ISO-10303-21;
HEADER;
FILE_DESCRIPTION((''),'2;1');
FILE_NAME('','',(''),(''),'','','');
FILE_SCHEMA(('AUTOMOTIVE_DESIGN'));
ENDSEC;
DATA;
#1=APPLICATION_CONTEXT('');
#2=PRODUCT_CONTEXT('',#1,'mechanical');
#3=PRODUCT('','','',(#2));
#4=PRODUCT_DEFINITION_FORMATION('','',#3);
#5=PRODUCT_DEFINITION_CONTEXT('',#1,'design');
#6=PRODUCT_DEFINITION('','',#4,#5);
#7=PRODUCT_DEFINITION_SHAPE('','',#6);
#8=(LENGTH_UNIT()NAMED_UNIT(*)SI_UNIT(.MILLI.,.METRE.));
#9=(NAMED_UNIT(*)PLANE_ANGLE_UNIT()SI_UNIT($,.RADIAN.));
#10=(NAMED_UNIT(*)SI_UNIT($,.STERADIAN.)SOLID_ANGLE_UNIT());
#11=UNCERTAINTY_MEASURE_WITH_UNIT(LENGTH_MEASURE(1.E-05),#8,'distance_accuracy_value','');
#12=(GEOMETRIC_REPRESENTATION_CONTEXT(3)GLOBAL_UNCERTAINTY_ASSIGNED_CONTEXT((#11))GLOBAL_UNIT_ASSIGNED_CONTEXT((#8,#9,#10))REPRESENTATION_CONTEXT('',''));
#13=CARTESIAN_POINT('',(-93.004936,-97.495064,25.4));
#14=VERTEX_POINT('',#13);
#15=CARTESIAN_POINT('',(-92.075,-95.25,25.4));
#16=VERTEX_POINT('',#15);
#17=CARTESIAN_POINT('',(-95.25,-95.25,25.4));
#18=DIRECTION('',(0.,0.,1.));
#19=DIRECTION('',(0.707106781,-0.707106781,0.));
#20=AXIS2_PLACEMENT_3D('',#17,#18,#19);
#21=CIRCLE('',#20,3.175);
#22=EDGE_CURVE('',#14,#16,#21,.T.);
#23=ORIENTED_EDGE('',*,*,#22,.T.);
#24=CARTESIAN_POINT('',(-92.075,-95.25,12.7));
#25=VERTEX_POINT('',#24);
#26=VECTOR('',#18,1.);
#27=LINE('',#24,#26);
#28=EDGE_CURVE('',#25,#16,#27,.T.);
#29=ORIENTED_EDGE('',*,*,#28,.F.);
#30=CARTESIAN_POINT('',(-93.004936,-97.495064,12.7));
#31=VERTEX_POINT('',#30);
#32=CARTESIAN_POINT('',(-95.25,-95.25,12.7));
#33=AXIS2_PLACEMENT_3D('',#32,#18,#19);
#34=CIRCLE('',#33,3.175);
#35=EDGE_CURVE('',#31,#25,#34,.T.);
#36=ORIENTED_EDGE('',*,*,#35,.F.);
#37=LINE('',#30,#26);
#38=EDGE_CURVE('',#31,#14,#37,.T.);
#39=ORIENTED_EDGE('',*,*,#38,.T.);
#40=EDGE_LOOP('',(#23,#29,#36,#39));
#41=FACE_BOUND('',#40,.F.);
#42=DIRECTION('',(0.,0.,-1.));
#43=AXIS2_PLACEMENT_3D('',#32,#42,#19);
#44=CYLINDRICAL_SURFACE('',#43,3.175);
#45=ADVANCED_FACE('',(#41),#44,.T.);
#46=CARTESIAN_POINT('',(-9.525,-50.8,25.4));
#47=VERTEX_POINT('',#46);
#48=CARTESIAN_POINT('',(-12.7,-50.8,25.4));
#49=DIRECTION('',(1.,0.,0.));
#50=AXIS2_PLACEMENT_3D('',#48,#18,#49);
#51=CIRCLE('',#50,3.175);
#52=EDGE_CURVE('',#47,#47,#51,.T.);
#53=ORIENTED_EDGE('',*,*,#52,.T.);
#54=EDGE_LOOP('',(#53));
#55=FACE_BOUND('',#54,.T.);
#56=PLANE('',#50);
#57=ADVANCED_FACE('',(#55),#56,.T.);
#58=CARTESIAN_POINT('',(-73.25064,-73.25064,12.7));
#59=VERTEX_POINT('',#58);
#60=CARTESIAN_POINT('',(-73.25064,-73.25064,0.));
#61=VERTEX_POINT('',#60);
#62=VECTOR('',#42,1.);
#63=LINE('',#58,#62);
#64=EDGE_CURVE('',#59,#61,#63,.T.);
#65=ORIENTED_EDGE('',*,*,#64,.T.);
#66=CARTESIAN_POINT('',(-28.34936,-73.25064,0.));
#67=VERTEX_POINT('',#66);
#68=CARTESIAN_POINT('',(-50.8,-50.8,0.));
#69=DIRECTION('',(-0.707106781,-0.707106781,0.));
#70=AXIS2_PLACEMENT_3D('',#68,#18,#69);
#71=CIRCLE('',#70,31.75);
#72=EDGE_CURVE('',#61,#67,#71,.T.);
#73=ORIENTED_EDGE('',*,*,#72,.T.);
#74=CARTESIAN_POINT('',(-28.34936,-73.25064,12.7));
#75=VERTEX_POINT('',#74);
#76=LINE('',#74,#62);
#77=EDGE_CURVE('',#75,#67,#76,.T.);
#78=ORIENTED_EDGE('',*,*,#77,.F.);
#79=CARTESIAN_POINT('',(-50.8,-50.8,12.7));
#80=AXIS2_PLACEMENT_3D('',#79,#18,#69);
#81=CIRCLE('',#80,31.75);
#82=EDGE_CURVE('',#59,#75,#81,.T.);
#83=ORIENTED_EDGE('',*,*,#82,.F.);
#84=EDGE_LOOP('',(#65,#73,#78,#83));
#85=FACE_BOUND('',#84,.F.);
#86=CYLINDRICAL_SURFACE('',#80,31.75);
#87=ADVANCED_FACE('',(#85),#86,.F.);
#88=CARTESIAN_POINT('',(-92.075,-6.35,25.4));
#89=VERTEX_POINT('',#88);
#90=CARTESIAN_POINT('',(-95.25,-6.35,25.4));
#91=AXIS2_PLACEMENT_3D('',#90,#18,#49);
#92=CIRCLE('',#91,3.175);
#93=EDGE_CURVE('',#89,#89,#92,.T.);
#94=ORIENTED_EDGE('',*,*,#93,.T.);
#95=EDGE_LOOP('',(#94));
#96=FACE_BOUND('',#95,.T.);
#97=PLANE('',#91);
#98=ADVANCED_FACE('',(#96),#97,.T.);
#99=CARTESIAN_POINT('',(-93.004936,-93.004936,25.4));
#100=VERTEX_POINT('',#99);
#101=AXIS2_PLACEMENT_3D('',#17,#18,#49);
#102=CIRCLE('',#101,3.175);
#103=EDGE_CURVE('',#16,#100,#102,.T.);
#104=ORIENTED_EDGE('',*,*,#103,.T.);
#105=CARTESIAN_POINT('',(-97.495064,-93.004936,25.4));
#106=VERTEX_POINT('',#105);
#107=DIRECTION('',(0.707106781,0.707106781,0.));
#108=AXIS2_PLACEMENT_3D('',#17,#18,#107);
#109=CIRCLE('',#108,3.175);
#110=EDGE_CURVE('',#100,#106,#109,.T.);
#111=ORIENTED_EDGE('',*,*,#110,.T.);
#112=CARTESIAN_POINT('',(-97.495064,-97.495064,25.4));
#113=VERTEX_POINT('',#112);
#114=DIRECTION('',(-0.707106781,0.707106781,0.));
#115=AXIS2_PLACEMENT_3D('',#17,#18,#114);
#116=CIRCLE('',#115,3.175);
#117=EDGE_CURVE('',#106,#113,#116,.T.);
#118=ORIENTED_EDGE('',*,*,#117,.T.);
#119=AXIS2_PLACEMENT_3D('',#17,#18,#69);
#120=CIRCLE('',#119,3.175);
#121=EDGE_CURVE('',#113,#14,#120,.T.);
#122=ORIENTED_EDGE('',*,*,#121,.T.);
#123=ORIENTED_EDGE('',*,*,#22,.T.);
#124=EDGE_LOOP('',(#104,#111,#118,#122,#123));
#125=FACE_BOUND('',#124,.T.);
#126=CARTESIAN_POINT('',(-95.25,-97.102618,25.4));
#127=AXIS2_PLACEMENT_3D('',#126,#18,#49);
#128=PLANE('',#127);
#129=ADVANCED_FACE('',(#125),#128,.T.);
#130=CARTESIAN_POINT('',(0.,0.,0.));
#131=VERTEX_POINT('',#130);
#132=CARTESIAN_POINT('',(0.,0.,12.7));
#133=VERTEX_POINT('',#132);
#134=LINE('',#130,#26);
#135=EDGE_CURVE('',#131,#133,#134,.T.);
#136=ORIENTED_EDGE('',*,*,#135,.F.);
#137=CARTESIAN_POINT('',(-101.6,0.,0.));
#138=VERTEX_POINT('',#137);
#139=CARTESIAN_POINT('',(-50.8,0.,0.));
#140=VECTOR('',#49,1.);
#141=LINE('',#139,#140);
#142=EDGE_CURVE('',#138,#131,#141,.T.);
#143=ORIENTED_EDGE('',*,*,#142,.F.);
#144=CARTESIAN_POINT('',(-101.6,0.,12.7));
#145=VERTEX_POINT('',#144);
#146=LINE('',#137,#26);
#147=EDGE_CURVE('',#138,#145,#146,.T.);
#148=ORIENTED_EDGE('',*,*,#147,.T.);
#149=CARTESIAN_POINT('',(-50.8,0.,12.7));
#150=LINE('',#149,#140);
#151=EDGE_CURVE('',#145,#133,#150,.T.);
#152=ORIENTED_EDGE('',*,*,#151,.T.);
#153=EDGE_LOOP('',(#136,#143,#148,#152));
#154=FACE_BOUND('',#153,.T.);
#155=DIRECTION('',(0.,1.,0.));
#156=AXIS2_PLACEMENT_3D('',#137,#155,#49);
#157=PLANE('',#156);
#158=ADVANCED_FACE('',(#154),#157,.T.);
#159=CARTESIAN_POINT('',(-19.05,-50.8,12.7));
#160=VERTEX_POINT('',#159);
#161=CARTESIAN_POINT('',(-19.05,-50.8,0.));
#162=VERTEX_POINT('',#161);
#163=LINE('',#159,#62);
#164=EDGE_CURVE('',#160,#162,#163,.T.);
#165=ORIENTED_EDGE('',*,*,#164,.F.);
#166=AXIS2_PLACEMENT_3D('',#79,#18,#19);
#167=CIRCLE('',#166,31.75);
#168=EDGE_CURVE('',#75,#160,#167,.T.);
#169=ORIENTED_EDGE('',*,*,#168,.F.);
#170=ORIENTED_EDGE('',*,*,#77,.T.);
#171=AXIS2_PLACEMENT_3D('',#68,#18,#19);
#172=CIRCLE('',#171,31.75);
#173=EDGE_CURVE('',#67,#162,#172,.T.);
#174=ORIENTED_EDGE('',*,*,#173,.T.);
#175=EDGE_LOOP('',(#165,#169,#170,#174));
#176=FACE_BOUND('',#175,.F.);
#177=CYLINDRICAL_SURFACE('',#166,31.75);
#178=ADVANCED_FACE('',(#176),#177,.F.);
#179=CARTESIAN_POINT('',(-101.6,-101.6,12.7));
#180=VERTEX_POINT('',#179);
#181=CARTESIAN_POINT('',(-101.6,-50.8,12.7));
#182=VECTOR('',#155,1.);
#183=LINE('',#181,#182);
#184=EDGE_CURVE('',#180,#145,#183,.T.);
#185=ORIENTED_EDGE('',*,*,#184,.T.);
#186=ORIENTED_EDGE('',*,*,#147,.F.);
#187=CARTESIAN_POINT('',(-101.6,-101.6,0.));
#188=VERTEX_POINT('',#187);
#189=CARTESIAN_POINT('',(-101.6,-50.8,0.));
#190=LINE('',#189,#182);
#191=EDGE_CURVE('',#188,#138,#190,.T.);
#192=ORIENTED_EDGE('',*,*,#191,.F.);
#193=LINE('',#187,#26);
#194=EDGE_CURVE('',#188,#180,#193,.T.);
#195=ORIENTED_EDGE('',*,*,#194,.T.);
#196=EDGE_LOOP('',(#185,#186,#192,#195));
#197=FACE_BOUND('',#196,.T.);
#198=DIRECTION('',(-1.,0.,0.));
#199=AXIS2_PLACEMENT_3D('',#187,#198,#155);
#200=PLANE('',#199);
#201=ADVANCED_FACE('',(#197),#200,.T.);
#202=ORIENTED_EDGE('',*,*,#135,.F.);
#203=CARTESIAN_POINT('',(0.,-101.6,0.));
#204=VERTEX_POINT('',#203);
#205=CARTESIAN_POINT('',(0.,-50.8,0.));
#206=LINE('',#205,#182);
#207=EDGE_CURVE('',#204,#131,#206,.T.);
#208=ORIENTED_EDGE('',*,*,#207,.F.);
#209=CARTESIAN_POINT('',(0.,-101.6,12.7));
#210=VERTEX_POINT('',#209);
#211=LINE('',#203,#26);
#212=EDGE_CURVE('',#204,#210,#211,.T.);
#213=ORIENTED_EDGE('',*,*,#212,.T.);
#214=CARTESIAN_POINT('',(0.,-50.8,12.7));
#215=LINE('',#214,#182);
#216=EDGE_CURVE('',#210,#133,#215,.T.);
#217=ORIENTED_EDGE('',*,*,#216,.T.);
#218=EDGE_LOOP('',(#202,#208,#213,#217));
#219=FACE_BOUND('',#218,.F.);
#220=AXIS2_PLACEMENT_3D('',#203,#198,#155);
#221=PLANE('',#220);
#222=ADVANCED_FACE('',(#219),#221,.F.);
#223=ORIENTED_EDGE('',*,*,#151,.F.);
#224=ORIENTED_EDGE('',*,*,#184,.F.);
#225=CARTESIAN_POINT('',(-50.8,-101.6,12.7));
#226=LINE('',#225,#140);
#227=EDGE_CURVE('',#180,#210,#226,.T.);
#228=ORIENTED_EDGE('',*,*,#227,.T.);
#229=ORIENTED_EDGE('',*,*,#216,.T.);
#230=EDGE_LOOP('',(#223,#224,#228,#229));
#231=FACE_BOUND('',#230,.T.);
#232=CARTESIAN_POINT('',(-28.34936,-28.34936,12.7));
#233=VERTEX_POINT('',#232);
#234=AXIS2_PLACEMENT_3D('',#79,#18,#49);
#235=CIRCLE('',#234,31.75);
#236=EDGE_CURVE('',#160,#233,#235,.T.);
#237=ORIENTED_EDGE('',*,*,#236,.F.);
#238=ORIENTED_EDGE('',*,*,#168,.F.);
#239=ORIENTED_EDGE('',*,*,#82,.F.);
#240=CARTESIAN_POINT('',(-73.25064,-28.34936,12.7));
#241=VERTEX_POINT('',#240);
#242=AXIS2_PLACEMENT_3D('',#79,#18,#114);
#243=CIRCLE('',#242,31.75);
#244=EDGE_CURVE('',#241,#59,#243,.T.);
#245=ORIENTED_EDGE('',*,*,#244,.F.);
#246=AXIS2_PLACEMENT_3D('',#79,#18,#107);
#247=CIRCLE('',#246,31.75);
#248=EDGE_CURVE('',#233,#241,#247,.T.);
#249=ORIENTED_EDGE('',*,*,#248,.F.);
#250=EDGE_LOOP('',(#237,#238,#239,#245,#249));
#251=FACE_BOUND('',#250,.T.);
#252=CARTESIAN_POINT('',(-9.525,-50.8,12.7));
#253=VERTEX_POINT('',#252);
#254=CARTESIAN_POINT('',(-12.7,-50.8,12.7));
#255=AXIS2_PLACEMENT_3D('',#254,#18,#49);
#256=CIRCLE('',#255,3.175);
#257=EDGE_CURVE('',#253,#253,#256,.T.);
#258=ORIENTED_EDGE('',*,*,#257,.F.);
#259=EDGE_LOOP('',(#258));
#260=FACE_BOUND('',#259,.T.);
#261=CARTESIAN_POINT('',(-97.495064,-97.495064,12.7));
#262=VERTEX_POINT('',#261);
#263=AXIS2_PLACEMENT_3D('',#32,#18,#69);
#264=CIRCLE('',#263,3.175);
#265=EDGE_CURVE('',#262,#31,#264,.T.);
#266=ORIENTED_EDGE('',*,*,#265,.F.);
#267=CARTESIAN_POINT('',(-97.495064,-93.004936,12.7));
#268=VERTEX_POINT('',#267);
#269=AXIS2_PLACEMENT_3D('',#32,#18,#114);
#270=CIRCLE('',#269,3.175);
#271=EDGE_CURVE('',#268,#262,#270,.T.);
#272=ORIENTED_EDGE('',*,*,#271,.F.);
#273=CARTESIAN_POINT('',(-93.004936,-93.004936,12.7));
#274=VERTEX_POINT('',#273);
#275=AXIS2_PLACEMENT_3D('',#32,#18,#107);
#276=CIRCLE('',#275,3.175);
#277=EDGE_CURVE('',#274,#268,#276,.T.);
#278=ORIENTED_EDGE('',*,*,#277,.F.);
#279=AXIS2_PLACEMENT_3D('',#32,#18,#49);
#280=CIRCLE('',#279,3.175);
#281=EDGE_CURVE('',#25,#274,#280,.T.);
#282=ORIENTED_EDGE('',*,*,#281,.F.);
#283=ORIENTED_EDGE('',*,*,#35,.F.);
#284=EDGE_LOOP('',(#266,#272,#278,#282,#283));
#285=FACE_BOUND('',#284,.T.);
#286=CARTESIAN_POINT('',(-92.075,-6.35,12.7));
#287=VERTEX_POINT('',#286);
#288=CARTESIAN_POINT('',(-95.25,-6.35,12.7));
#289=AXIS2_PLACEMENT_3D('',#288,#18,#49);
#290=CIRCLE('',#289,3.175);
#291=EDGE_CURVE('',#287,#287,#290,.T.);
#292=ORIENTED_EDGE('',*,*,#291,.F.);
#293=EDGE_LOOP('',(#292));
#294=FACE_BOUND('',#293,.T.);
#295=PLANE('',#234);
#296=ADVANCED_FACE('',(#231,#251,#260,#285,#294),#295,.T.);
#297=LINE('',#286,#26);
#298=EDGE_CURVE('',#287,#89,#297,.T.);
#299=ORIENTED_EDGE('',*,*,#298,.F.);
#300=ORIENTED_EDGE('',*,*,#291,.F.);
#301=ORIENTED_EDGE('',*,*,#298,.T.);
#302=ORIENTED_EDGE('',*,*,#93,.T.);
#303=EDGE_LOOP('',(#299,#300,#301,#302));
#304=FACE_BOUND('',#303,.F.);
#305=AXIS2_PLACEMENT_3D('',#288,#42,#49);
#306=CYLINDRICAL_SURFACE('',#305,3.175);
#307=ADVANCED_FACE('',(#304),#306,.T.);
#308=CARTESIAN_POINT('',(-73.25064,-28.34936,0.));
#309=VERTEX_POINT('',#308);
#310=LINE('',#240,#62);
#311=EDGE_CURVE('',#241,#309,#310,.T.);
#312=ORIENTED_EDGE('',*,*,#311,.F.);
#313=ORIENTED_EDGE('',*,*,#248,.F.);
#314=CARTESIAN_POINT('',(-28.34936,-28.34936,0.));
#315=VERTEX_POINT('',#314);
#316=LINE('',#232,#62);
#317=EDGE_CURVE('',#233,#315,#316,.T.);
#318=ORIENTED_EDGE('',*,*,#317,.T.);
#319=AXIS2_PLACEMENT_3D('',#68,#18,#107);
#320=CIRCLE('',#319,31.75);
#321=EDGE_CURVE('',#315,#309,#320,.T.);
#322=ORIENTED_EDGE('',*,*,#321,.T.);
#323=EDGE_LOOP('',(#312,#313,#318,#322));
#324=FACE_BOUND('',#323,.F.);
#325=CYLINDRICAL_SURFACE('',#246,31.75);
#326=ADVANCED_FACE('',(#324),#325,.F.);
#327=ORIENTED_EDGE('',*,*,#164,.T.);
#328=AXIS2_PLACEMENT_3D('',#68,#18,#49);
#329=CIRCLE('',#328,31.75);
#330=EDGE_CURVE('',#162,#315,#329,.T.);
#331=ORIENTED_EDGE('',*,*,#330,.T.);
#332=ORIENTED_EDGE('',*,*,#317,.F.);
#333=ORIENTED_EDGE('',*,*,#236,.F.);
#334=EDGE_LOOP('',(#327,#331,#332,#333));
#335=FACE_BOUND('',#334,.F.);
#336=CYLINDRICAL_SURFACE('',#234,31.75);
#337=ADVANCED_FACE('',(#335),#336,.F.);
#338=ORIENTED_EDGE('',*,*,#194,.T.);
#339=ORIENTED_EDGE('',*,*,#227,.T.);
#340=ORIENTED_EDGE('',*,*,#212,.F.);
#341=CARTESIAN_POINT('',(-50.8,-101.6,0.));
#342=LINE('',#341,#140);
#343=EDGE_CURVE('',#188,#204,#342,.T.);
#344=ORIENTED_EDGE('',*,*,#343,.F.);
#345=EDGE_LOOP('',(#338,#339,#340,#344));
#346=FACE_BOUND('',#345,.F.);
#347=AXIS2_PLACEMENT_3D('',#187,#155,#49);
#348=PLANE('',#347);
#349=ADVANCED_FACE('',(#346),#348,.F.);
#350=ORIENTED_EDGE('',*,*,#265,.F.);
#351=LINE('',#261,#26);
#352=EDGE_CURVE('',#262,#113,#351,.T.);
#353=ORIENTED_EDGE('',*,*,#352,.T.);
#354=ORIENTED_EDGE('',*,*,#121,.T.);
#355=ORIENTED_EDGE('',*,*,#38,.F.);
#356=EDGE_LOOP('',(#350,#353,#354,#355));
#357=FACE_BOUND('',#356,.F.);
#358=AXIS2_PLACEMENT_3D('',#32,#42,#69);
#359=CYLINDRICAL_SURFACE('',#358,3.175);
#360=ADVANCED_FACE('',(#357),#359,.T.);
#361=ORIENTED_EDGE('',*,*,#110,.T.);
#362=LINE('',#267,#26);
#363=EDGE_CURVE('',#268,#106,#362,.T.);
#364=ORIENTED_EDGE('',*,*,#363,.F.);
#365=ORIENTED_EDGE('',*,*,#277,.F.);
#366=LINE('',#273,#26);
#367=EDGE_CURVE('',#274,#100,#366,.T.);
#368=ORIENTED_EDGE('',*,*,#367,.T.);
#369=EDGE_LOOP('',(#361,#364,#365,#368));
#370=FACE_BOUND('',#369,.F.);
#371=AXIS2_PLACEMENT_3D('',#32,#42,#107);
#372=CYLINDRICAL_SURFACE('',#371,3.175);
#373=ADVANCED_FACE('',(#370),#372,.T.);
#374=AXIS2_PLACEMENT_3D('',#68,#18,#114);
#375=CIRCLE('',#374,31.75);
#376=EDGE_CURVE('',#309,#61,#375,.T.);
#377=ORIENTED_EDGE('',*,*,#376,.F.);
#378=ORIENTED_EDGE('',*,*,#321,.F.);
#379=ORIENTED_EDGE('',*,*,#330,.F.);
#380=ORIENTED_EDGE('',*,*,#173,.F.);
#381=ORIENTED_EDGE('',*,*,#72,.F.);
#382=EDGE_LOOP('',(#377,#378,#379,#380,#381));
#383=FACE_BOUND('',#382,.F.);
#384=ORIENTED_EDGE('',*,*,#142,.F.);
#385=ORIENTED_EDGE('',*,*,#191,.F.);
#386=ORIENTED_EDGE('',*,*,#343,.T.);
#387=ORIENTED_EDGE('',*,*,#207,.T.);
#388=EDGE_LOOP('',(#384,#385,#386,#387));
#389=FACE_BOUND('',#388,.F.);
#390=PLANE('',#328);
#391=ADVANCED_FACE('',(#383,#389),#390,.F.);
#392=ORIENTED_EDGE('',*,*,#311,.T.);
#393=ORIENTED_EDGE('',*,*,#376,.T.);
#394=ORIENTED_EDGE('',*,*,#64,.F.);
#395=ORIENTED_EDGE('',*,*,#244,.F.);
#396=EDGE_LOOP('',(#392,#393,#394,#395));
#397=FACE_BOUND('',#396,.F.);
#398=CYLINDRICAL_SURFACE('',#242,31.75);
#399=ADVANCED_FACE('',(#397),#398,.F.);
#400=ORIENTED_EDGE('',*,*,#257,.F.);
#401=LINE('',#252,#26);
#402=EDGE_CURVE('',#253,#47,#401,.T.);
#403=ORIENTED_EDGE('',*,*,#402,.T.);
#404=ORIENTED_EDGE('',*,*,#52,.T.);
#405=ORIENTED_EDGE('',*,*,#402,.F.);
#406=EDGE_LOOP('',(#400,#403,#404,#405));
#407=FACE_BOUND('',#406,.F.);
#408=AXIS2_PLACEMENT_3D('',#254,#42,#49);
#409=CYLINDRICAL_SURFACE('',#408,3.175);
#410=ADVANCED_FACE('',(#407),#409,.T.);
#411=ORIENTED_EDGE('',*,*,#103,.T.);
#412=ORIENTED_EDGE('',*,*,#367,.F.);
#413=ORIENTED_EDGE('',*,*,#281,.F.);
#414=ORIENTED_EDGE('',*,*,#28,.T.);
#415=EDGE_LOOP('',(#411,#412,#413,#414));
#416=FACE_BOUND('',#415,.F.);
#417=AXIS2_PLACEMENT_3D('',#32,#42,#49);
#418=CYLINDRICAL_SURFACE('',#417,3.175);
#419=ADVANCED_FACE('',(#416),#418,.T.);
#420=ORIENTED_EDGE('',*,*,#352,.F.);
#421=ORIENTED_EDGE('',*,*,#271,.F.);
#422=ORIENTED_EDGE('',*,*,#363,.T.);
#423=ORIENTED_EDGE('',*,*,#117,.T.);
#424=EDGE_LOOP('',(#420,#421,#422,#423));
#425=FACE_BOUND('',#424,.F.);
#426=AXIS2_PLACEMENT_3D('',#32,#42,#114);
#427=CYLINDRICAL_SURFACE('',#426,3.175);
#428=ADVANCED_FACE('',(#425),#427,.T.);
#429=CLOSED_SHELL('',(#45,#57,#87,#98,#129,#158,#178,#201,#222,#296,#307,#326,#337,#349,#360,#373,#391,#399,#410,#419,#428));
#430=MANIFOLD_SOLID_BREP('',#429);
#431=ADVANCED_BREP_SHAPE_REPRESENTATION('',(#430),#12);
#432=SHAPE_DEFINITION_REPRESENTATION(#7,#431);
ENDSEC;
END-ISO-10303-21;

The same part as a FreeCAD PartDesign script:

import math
import FreeCAD as App
import Part
import Sketcher
from FreeCAD import Vector
Q = App.Units.Quantity


def add_polygon(sketch, points):
    """Adds a closed chain of lines whose ends are joined by coincident constraints."""
    first, n = sketch.GeometryCount, len(points)
    for a, b in zip(points, points[1:] + points[:1]):
        sketch.addGeometry(Part.LineSegment(App.Vector(*a, 0), App.Vector(*b, 0)), False)
    for i in range(n):
        sketch.addConstraint(Sketcher.Constraint("Coincident", first + i, 2, first + (i + 1) % n, 1))

doc = App.newDocument("Part")
body = doc.addObject("PartDesign::Body", "Body")

# Sketch on XY plane
sketch1 = doc.addObject("Sketcher::SketchObject", "Sketch")
body.addObject(sketch1)
sketch1.AttachmentSupport = (doc.XY_Plane, [""])
sketch1.MapMode = "FlatFace"
add_polygon(sketch1, [(-102, 0), (-102, -102), (0, -102), (0, 0)])  # lines 0-3
sketch1.addConstraint([
    Sketcher.Constraint("Vertical", 0),
    Sketcher.Constraint("Horizontal", 1),
    Sketcher.Constraint("Vertical", 2),
    Sketcher.Constraint("Horizontal", 3),
    Sketcher.Constraint("Coincident", 2, 2, -1, 1),
    Sketcher.Constraint("Equal", 3, 0),
    Sketcher.Constraint("DistanceX", 1, 1, 1, 2, Q("4 in")),
])
pad1 = doc.addObject("PartDesign::Pad", "Pad")
body.addObject(pad1)
pad1.Profile = sketch1
pad1.Length = Q("0.5 in")

# Sketch on XY plane
sketch2 = doc.addObject("Sketcher::SketchObject", "Sketch001")
body.addObject(sketch2)
sketch2.AttachmentSupport = (doc.XY_Plane, [""])
sketch2.MapMode = "FlatFace"
sketch2.AttachmentOffset = App.Placement(Vector(0, 0, 0.5 * 25.4), App.Rotation())
sketch2.addGeometry([
    Part.ArcOfCircle(Part.Circle(Vector(-95.2, -95.2, 0), Vector(0, 0, 1), 3.2), math.radians(-135), math.radians(-45)),  # 0
    Part.ArcOfCircle(Part.Circle(Vector(-95.2, -95.2, 0), Vector(0, 0, 1), 3.2), math.radians(-45), math.radians(0)),  # 1
    Part.ArcOfCircle(Part.Circle(Vector(-95.2, -95.2, 0), Vector(0, 0, 1), 3.2), math.radians(0), math.radians(45)),  # 2
    Part.ArcOfCircle(Part.Circle(Vector(-95.2, -95.2, 0), Vector(0, 0, 1), 3.2), math.radians(45), math.radians(135)),  # 3
    Part.ArcOfCircle(Part.Circle(Vector(-95.2, -95.2, 0), Vector(0, 0, 1), 3.2), math.radians(135), math.radians(225)),  # 4
    Part.Circle(Vector(-95.2, -6.3, 0), Vector(0, 0, 1), 3.2),  # 5
], False)
sketch2.addConstraint([
    Sketcher.Constraint("Tangent", 0, 2, 1, 1),
    Sketcher.Constraint("Tangent", 1, 2, 2, 1),
    Sketcher.Constraint("Tangent", 2, 2, 3, 1),
    Sketcher.Constraint("Tangent", 3, 2, 4, 1),
    Sketcher.Constraint("Tangent", 4, 2, 0, 1),
    Sketcher.Constraint("Coincident", 2, 3, 0, 3),
    Sketcher.Constraint("Equal", 4, 5),
    Sketcher.Constraint("Horizontal", 4, 3, 1, 2),
    Sketcher.Constraint("Horizontal", 2, 2, 3, 2),
    Sketcher.Constraint("Horizontal", 0, 2, 4, 2),
    Sketcher.Constraint("Vertical", 4, 3, 5, 3),
    Sketcher.Constraint("Vertical", 0, 2, 2, 2),
    Sketcher.Constraint("Diameter", 5, Q("0.25 in")),
    Sketcher.Constraint("DistanceY", 0, 3, 5, 3, Q("3.5 in")),
    Sketcher.Constraint("DistanceX", 0, 3, -1, 1, Q("3.75 in")),
    Sketcher.Constraint("DistanceY", 0, 3, -1, 1, Q("3.75 in")),
    Sketcher.Constraint("DistanceX", 0, 2, -1, 1, Q("93.004936 mm")),
])
pad2 = doc.addObject("PartDesign::Pad", "Pad001")
body.addObject(pad2)
pad2.Profile = sketch2
pad2.Length = Q("0.5 in")

# Sketch on XY plane
sketch3 = doc.addObject("Sketcher::SketchObject", "Sketch002")
body.addObject(sketch3)
sketch3.AttachmentSupport = (doc.XY_Plane, [""])
sketch3.MapMode = "FlatFace"
sketch3.AttachmentOffset = App.Placement(Vector(0, 0, 0.5 * 25.4), App.Rotation())
sketch3.addGeometry(Part.Circle(Vector(-12.7, -50.8, 0), Vector(0, 0, 1), 3.2), False)
sketch3.addConstraint([
    Sketcher.Constraint("Diameter", 0, Q("0.25 in")),
    Sketcher.Constraint("DistanceY", 0, 3, -1, 1, Q("2 in")),
    Sketcher.Constraint("DistanceX", 0, 3, -1, 1, Q("0.5 in")),
])
pad3 = doc.addObject("PartDesign::Pad", "Pad002")
body.addObject(pad3)
pad3.Profile = sketch3
pad3.Length = Q("0.5 in")

# Sketch on XY plane
sketch4 = doc.addObject("Sketcher::SketchObject", "Sketch003")
body.addObject(sketch4)
sketch4.AttachmentSupport = (doc.XY_Plane, [""])
sketch4.MapMode = "FlatFace"
sketch4.AttachmentOffset = App.Placement(Vector(0, 0, 0.5 * 25.4), App.Rotation())
sketch4.addGeometry([
    Part.ArcOfCircle(Part.Circle(Vector(-51, -51, 0), Vector(0, 0, 1), 32), math.radians(135), math.radians(225)),  # 0
    Part.ArcOfCircle(Part.Circle(Vector(-51, -51, 0), Vector(0, 0, 1), 32), math.radians(-135), math.radians(-45)),  # 1
    Part.ArcOfCircle(Part.Circle(Vector(-51, -51, 0), Vector(0, 0, 1), 32), math.radians(-45), math.radians(0)),  # 2
    Part.ArcOfCircle(Part.Circle(Vector(-51, -51, 0), Vector(0, 0, 1), 32), math.radians(0), math.radians(45)),  # 3
    Part.ArcOfCircle(Part.Circle(Vector(-51, -51, 0), Vector(0, 0, 1), 32), math.radians(45), math.radians(135)),  # 4
], False)
sketch4.addConstraint([
    Sketcher.Constraint("Tangent", 0, 2, 1, 1),
    Sketcher.Constraint("Tangent", 1, 2, 2, 1),
    Sketcher.Constraint("Tangent", 2, 2, 3, 1),
    Sketcher.Constraint("Tangent", 3, 2, 4, 1),
    Sketcher.Constraint("Tangent", 4, 2, 0, 1),
    Sketcher.Constraint("Coincident", 2, 3, 0, 3),
    Sketcher.Constraint("Horizontal", 0, 2, 1, 2),
    Sketcher.Constraint("Horizontal", 4, 3, 2, 2),
    Sketcher.Constraint("Horizontal", 3, 2, 4, 2),
    Sketcher.Constraint("Vertical", 1, 2, 3, 2),
    Sketcher.Constraint("Radius", 0, Q("1.25 in")),
    Sketcher.Constraint("DistanceX", 0, 3, -1, 1, Q("2 in")),
    Sketcher.Constraint("DistanceY", 0, 3, -1, 1, Q("2 in")),
    Sketcher.Constraint("DistanceX", 0, 2, -1, 1, Q("73.25064 mm")),
])
pocket1 = doc.addObject("PartDesign::Pocket", "Pocket")
body.addObject(pocket1)
pocket1.Profile = sketch4
pocket1.Length = Q("1 in")

doc.recompute()
